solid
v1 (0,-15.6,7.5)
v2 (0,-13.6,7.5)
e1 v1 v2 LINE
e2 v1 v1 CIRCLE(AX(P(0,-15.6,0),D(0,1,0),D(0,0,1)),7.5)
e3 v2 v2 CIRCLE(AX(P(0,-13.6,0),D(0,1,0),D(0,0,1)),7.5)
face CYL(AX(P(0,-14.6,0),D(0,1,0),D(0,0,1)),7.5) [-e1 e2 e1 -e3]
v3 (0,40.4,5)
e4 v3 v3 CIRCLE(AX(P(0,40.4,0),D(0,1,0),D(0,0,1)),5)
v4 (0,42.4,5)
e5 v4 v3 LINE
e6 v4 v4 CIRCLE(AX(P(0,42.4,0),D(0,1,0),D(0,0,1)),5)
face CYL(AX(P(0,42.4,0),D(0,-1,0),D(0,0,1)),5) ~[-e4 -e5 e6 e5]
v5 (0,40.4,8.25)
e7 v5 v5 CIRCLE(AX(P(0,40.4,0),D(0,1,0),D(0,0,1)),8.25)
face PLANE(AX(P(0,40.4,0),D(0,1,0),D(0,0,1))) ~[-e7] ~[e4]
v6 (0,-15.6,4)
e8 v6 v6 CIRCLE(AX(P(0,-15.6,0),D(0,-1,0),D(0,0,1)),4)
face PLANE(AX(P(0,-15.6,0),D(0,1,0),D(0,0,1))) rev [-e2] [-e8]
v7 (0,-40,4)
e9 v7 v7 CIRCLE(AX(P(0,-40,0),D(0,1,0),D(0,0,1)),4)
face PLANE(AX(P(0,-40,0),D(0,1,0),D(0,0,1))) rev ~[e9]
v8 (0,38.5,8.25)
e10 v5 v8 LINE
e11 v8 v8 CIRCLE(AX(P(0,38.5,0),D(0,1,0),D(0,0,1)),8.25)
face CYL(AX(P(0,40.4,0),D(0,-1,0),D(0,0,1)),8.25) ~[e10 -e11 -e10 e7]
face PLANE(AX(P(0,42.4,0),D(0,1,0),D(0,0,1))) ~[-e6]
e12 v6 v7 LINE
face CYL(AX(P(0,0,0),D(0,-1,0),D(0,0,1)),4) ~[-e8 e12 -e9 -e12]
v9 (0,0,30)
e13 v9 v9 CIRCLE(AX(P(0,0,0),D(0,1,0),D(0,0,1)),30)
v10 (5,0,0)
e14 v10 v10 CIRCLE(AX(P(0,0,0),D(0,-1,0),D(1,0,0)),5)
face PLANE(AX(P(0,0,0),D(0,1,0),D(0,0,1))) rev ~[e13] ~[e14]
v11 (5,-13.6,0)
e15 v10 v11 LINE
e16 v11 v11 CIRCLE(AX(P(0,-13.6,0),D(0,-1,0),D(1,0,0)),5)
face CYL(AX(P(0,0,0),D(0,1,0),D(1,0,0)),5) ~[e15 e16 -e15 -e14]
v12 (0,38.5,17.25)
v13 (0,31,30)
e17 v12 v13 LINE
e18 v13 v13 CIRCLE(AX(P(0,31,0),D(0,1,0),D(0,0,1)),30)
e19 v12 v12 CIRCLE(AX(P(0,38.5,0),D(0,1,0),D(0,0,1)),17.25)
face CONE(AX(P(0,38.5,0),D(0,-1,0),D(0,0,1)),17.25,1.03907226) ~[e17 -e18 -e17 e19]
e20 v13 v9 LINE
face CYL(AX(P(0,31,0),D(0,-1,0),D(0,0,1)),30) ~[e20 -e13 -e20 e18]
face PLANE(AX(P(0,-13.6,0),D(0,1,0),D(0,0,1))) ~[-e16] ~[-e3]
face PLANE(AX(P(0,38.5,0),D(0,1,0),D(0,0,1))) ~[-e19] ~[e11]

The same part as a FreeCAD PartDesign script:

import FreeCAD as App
import Part
import Sketcher

V = App.Vector


def add_polygon(sketch, points):
    """Adds a closed chain of lines whose ends are joined by coincident constraints."""
    first, n = sketch.GeometryCount, len(points)
    for a, b in zip(points, points[1:] + points[:1]):
        sketch.addGeometry(Part.LineSegment(App.Vector(*a, 0), App.Vector(*b, 0)), False)
    for i in range(n):
        sketch.addConstraint(Sketcher.Constraint("Coincident", first + i, 2, first + (i + 1) % n, 1))

doc = App.newDocument("Part")
body = doc.addObject("PartDesign::Body", "Body")

# Sketch on YZ plane
sketch1 = doc.addObject("Sketcher::SketchObject", "Sketch")
body.addObject(sketch1)
sketch1.AttachmentSupport = (doc.YZ_Plane, [""])
sketch1.MapMode = "FlatFace"
add_polygon(sketch1, [(-40, 4), (-40, 0), (42.4, 0), (42.4, 5), (40.4, 5), (40.4, 8.2), (38.5, 8.2), (38.5, 17.2), (31, 30), (0, 30), (0, 4)])  # lines 0-10
sketch1.addConstraint(Sketcher.Constraint("Vertical", 0))
sketch1.addConstraint(Sketcher.Constraint("Horizontal", 1))
sketch1.addConstraint(Sketcher.Constraint("Vertical", 2))
sketch1.addConstraint(Sketcher.Constraint("Horizontal", 3))
sketch1.addConstraint(Sketcher.Constraint("Vertical", 4))
sketch1.addConstraint(Sketcher.Constraint("Horizontal", 5))
sketch1.addConstraint(Sketcher.Constraint("Vertical", 6))
sketch1.addConstraint(Sketcher.Constraint("Horizontal", 8))
sketch1.addConstraint(Sketcher.Constraint("Vertical", 9))
sketch1.addConstraint(Sketcher.Constraint("Horizontal", 10))
sketch1.addConstraint(Sketcher.Constraint("PointOnObject", 0, 2, -1))
sketch1.addConstraint(Sketcher.Constraint("PointOnObject", 8, 2, -2))
sketch1.addConstraint(Sketcher.Constraint("DistanceX", 3, 2, 3, 1, 2.0))
sketch1.addConstraint(Sketcher.Constraint("DistanceX", 8, 2, 8, 1, 31.0))
sketch1.addConstraint(Sketcher.Constraint("DistanceX", 10, 2, 10, 1, 40.0))
sketch1.addConstraint(Sketcher.Constraint("DistanceY", 0, 2, 0, 1, 4.0))
sketch1.addConstraint(Sketcher.Constraint("DistanceY", 2, 1, 2, 2, 5.0))
sketch1.addConstraint(Sketcher.Constraint("DistanceY", 6, 1, 6, 2, 9.0))
sketch1.addConstraint(Sketcher.Constraint("DistanceY", 9, 2, 9, 1, 26.0))
sketch1.addConstraint(Sketcher.Constraint("DistanceX", 1, 1, 1, 2, 82.4))
sketch1.addConstraint(Sketcher.Constraint("DistanceX", 5, 2, 5, 1, 1.9))
sketch1.addConstraint(Sketcher.Constraint("DistanceY", 4, 1, 4, 2, 3.25))
revolution = doc.addObject("PartDesign::Revolution", "Revolution")
body.addObject(revolution)
revolution.Profile = sketch1
revolution.ReferenceAxis = (sketch1, ["H_Axis"])
revolution.Angle = 360

# Sketch on XZ plane
sketch2 = doc.addObject("Sketcher::SketchObject", "Sketch001")
body.addObject(sketch2)
sketch2.AttachmentSupport = (doc.XZ_Plane, [""])
sketch2.MapMode = "FlatFace"
sketch2.addGeometry(Part.Circle(V(0, 0, 0), V(0, 0, 1), 5), False)
sketch2.addConstraint(Sketcher.Constraint("Coincident", 0, 3, -1, 1))
sketch2.addConstraint(Sketcher.Constraint("Diameter", 0, 10.0))
pad1 = doc.addObject("PartDesign::Pad", "Pad")
body.addObject(pad1)
pad1.Profile = sketch2
pad1.Length = 13.6

# Sketch on YZ plane
sketch3 = doc.addObject("Sketcher::SketchObject", "Sketch002")
body.addObject(sketch3)
sketch3.AttachmentSupport = (doc.YZ_Plane, [""])
sketch3.MapMode = "FlatFace"
add_polygon(sketch3, [(-15.6, 7.5), (-15.6, 0), (-13.6, 0), (-13.6, 7.5)])  # lines 0-3
sketch3.addConstraint(Sketcher.Constraint("Vertical", 0))
sketch3.addConstraint(Sketcher.Constraint("Horizontal", 1))
sketch3.addConstraint(Sketcher.Constraint("Vertical", 2))
sketch3.addConstraint(Sketcher.Constraint("Horizontal", 3))
sketch3.addConstraint(Sketcher.Constraint("PointOnObject", 0, 2, -1))
sketch3.addConstraint(Sketcher.Constraint("DistanceX", 1, 1, 1, 2, 2.0))
sketch3.addConstraint(Sketcher.Constraint("DistanceY", 0, 2, 0, 1, 7.5))
sketch3.addConstraint(Sketcher.Constraint("DistanceX", 0, 2, -1, 1, 15.6))
revolution2 = doc.addObject("PartDesign::Revolution", "Revolution001")
body.addObject(revolution2)
revolution2.Profile = sketch3
revolution2.ReferenceAxis = (sketch3, ["H_Axis"])
revolution2.Angle = 360

doc.recompute()
